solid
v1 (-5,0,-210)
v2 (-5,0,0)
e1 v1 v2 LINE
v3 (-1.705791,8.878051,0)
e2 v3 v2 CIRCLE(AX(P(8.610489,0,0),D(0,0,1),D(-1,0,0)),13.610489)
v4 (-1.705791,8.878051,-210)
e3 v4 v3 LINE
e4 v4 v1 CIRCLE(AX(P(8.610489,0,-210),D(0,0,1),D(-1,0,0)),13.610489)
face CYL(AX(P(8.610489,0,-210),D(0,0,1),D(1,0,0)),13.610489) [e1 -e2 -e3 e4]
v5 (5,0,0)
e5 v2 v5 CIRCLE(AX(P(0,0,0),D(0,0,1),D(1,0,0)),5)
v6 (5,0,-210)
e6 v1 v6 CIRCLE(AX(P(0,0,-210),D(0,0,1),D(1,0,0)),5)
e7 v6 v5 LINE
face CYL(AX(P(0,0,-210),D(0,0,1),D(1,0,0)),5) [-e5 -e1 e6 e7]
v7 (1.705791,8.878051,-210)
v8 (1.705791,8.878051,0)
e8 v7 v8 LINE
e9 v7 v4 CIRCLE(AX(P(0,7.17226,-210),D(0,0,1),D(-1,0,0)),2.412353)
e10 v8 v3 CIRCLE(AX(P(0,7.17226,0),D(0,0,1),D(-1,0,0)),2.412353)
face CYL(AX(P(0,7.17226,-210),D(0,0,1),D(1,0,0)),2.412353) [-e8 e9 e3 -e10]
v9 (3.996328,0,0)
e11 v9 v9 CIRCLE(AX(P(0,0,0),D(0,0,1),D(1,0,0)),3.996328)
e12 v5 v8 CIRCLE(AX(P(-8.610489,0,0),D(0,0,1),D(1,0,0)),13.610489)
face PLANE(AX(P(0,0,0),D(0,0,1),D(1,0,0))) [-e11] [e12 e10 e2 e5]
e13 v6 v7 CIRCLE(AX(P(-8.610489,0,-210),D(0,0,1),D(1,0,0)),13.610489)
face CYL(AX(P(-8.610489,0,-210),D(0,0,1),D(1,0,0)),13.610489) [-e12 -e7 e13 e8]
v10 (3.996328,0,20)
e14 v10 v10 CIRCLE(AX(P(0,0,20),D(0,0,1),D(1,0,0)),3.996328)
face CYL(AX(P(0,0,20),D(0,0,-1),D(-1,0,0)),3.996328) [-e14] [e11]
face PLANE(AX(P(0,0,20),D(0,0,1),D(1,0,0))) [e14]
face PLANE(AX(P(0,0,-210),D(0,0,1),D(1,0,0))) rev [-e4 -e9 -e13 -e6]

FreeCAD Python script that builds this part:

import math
import FreeCAD as App
import Part
import Sketcher

V = App.Vector

doc = App.newDocument("Part")
body = doc.addObject("PartDesign::Body", "Body")

sketch1 = body.newObject("Sketcher::SketchObject", "Sketch")
sketch1.AttachmentSupport = (doc.getObject("XY_Plane"), [""])
sketch1.MapMode = "FlatFace"
sketch1.addGeometry(Part.Circle(V(0, 0, 0), V(0, 0, 1), 5), False)
sketch1.addConstraint([
    Sketcher.Constraint("Coincident", 0, 3, -1, 1),
    Sketcher.Constraint("Diameter", 0, 10.0),
])
pad1 = body.newObject("PartDesign::Pad", "Pad")
pad1.Profile = sketch1
pad1.Length = 210
pad1.Reversed = True

sketch2 = body.newObject("Sketcher::SketchObject", "Sketch001")
sketch2.AttachmentSupport = (doc.getObject("XY_Plane"), [""])
sketch2.MapMode = "FlatFace"
sketch2.addGeometry([
    Part.LineSegment(V(-5, 0, 0), V(5, 0, 0)),
    Part.ArcOfCircle(Part.Circle(V(-8.6, 0, 0), V(0, 0, 1), 13.6), math.radians(0), math.radians(41)),
    Part.ArcOfCircle(Part.Circle(V(0, 7.2, 0), V(0, 0, 1), 2.4), math.radians(45), math.radians(135)),
    Part.ArcOfCircle(Part.Circle(V(8.6, 0, 0), V(0, 0, 1), 13.6), math.radians(139), math.radians(180)),
], False)
sketch2.addConstraint([
    Sketcher.Constraint("Coincident", 0, 2, 1, 1),
    Sketcher.Constraint("Coincident", 1, 2, 2, 1),
    Sketcher.Constraint("Coincident", 2, 2, 3, 1),
    Sketcher.Constraint("Coincident", 3, 2, 0, 1),
    Sketcher.Constraint("Horizontal", 0),
    Sketcher.Constraint("Equal", 1, 3),
    Sketcher.Constraint("Symmetric", 1, 3, 3, 3, -1, 1),
    Sketcher.Constraint("Symmetric", 1, 2, 2, 2, -2),
    Sketcher.Constraint("PointOnObject", 0, 2, -1),
    Sketcher.Constraint("DistanceX", 0, 1, 0, 2, 10.0),
    Sketcher.Constraint("Radius", 1, 13.610489),
    Sketcher.Constraint("Radius", 2, 2.412353),
    Sketcher.Constraint("DistanceX", 1, 2, 3, 3, 6.904698),
])
pad2 = body.newObject("PartDesign::Pad", "Pad001")
pad2.Profile = sketch2
pad2.Length = 210
pad2.Reversed = True

sketch3 = body.newObject("Sketcher::SketchObject", "Sketch002")
sketch3.AttachmentSupport = (doc.getObject("XY_Plane"), [""])
sketch3.MapMode = "FlatFace"
sketch3.addGeometry(Part.Circle(V(0, 0, 0), V(0, 0, 1), 4), False)
sketch3.addConstraint([
    Sketcher.Constraint("Coincident", 0, 3, -1, 1),
    Sketcher.Constraint("Diameter", 0, 7.992655),
])
pad3 = body.newObject("PartDesign::Pad", "Pad002")
pad3.Profile = sketch3
pad3.Length = 20

doc.recompute()
